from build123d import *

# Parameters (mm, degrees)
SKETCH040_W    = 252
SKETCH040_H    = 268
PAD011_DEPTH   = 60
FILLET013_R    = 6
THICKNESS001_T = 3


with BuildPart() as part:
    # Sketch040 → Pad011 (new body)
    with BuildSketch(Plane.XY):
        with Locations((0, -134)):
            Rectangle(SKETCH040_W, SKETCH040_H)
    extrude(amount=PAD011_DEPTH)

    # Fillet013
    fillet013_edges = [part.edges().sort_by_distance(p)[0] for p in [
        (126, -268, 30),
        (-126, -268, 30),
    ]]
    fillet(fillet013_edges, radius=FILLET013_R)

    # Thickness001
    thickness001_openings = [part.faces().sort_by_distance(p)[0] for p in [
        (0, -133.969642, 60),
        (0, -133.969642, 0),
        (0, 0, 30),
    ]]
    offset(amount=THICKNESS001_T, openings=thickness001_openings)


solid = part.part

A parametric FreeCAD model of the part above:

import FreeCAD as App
import Part
import Sketcher
from FreeCAD import Vector


def edges_at(feature, points):
    """Names of the edges that pass closest to the given points."""
    edges = feature.Shape.Edges
    near = lambda p: min(range(len(edges)), key=lambda i: edges[i].distToShape(Part.Vertex(*p))[0])
    return sorted({f"Edge{near(p) + 1}" for p in points})


def faces_at(feature, points):
    """Names of the faces that lie closest to the given points."""
    faces = feature.Shape.Faces
    near = lambda p: min(range(len(faces)), key=lambda i: faces[i].distToShape(Part.Vertex(*p))[0])
    return sorted({f"Face{near(p) + 1}" for p in points})


def add_polygon(sketch, points):
    """Adds a closed chain of lines whose ends are joined by coincident constraints."""
    first, n = sketch.GeometryCount, len(points)
    for a, b in zip(points, points[1:] + points[:1]):
        sketch.addGeometry(Part.LineSegment(App.Vector(*a, 0), App.Vector(*b, 0)), False)
    for i in range(n):
        sketch.addConstraint(Sketcher.Constraint("Coincident", first + i, 2, first + (i + 1) % n, 1))

doc = App.newDocument("Part")
params = doc.addObject("Spreadsheet::Sheet", "Params")
for row, (alias, value) in enumerate([
    ("sketch1_width", "252 mm"),
    ("sketch1_height", "268 mm"),
    ("pad1_length", "60 mm"),
    ("fillet_radius", "6 mm"),
    ("thickness_wall", "3 mm"),
], start=1):
    params.set(f"A{row}", alias)
    params.set(f"B{row}", "=" + value)
    params.setAlias(f"B{row}", alias)

body = doc.addObject("PartDesign::Body", "Body")

# Sketch on XY plane
sketch1 = doc.addObject("Sketcher::SketchObject", "Sketch")
body.addObject(sketch1)
sketch1.AttachmentSupport = (doc.XY_Plane, [""])
sketch1.MapMode = "FlatFace"
add_polygon(sketch1, [(-126, 0), (-126, -268), (126, -268), (126, 0)])  # lines 0-3
sketch1.addConstraint([
    Sketcher.Constraint("Vertical", 0),
    Sketcher.Constraint("Horizontal", 1),
    Sketcher.Constraint("Vertical", 2),
    Sketcher.Constraint("Horizontal", 3),
    Sketcher.Constraint("Symmetric", 2, 2, 3, 2, -1, 1),
    Sketcher.Constraint("DistanceX", 1, 1, 1, 2, 252.0),
    Sketcher.Constraint("DistanceY", 0, 2, 0, 1, 268.0),
])
sketch1.setExpression("Constraints[9]", "Params.sketch1_width")
sketch1.setExpression("Constraints[10]", "Params.sketch1_height")
pad1 = doc.addObject("PartDesign::Pad", "Pad")
body.addObject(pad1)
pad1.Profile = sketch1
pad1.setExpression("Length", "Params.pad1_length")
doc.recompute()

fillet = doc.addObject("PartDesign::Fillet", "Fillet")
body.addObject(fillet)
fillet.Base = (pad1, edges_at(pad1, [(126, -268, 30), (-126, -268, 30)]))
fillet.setExpression("Radius", "Params.fillet_radius")
doc.recompute()

thickness = doc.addObject("PartDesign::Thickness", "Thickness")
body.addObject(thickness)
thickness.Base = (fillet, faces_at(fillet, [(0, -134, 60), (0, -134, 0), (0, 0, 30)]))
thickness.setExpression("Value", "Params.thickness_wall")
thickness.Reversed = False
thickness.Join = "Arc"

doc.recompute()
